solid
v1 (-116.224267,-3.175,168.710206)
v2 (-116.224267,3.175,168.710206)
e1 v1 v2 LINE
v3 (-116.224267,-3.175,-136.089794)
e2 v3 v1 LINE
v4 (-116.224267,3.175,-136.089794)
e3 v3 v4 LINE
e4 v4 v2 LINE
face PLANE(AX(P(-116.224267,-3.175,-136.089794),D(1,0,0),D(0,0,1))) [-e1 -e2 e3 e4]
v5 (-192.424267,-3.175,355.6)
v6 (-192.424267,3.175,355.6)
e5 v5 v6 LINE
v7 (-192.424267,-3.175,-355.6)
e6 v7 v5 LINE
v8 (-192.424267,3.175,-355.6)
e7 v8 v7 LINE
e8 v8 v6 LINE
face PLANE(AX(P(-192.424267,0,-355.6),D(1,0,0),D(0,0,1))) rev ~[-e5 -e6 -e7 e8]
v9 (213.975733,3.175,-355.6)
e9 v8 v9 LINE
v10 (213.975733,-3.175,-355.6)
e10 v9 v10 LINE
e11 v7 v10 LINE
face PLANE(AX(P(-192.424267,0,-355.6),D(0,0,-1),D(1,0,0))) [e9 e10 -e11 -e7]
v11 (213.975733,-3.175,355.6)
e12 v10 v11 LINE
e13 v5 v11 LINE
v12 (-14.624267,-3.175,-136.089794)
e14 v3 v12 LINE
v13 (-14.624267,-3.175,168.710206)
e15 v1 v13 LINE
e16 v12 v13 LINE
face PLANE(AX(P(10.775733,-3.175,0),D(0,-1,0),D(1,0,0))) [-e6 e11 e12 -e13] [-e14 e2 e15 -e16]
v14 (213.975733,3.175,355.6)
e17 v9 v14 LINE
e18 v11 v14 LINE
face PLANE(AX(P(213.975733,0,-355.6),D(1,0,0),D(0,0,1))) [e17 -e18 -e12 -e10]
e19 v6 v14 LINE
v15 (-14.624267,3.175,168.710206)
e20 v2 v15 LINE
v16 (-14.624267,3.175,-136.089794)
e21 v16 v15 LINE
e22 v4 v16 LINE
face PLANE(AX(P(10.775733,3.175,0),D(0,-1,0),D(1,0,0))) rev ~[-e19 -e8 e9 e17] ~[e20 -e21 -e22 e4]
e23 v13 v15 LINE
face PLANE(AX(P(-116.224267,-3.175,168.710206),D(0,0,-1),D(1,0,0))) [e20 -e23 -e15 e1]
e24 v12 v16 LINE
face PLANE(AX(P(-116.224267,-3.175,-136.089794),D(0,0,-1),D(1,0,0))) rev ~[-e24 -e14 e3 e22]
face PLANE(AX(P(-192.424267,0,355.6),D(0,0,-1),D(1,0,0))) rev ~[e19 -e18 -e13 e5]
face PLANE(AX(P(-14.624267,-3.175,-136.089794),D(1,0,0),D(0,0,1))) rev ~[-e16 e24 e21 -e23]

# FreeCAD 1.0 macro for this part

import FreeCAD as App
import Part
import Sketcher
from FreeCAD import Vector
Q = App.Units.Quantity


def add_polygon(sketch, points):
    """Adds a closed chain of lines whose ends are joined by coincident constraints."""
    first, n = sketch.GeometryCount, len(points)
    for a, b in zip(points, points[1:] + points[:1]):
        sketch.addGeometry(Part.LineSegment(App.Vector(*a, 0), App.Vector(*b, 0)), False)
    for i in range(n):
        sketch.addConstraint(Sketcher.Constraint("Coincident", first + i, 2, first + (i + 1) % n, 1))

doc = App.newDocument("Part")
body = doc.addObject("PartDesign::Body", "Body")

# Sketch on XZ plane
sketch1 = body.newObject("Sketcher::SketchObject", "Sketch")
sketch1.AttachmentSupport = (doc.getObject("XZ_Plane"), [""])
sketch1.MapMode = "FlatFace"
add_polygon(sketch1, [(-192, 356), (-192, -356), (214, -356), (214, 356)])  # lines 0-3
sketch1.addConstraint(Sketcher.Constraint("Vertical", 0))
sketch1.addConstraint(Sketcher.Constraint("Horizontal", 1))
sketch1.addConstraint(Sketcher.Constraint("Vertical", 2))
sketch1.addConstraint(Sketcher.Constraint("Horizontal", 3))
sketch1.addConstraint(Sketcher.Constraint("DistanceX", 1, 1, 1, 2, Q("16 in")))
sketch1.addConstraint(Sketcher.Constraint("DistanceY", 0, 2, 0, 1, Q("28 in")))
sketch1.addConstraint(Sketcher.Constraint("DistanceY", 0, 2, -1, 1, Q("14 in")))
sketch1.addConstraint(Sketcher.Constraint("DistanceX", 0, 2, -1, 1, Q("192.424267 mm")))
pad1 = body.newObject("PartDesign::Pad", "Pad")
pad1.Profile = sketch1
pad1.Length = Q("0.25 in")
pad1.Midplane = True

# Sketch on XZ plane
sketch2 = body.newObject("Sketcher::SketchObject", "Sketch001")
sketch2.AttachmentSupport = (doc.getObject("XZ_Plane"), [""])
sketch2.MapMode = "FlatFace"
sketch2.AttachmentOffset = App.Placement(Vector(0, 0, 0.125 * 25.4), App.Rotation())
add_polygon(sketch2, [(-116, 169), (-116, -136), (-15, -136), (-15, 169)])  # lines 0-3
sketch2.addConstraint(Sketcher.Constraint("Vertical", 0))
sketch2.addConstraint(Sketcher.Constraint("Horizontal", 1))
sketch2.addConstraint(Sketcher.Constraint("Vertical", 2))
sketch2.addConstraint(Sketcher.Constraint("Horizontal", 3))
sketch2.addConstraint(Sketcher.Constraint("DistanceX", 1, 1, 1, 2, Q("4 in")))
sketch2.addConstraint(Sketcher.Constraint("DistanceY", 0, 2, 0, 1, Q("12 in")))
sketch2.addConstraint(Sketcher.Constraint("DistanceX", 0, 2, -1, 1, Q("116.224267 mm")))
sketch2.addConstraint(Sketcher.Constraint("DistanceY", 0, 2, -1, 1, Q("136.089794 mm")))
pocket1 = body.newObject("PartDesign::Pocket", "Pocket")
pocket1.Profile = sketch2
pocket1.Type = "ThroughAll"

doc.recompute()
